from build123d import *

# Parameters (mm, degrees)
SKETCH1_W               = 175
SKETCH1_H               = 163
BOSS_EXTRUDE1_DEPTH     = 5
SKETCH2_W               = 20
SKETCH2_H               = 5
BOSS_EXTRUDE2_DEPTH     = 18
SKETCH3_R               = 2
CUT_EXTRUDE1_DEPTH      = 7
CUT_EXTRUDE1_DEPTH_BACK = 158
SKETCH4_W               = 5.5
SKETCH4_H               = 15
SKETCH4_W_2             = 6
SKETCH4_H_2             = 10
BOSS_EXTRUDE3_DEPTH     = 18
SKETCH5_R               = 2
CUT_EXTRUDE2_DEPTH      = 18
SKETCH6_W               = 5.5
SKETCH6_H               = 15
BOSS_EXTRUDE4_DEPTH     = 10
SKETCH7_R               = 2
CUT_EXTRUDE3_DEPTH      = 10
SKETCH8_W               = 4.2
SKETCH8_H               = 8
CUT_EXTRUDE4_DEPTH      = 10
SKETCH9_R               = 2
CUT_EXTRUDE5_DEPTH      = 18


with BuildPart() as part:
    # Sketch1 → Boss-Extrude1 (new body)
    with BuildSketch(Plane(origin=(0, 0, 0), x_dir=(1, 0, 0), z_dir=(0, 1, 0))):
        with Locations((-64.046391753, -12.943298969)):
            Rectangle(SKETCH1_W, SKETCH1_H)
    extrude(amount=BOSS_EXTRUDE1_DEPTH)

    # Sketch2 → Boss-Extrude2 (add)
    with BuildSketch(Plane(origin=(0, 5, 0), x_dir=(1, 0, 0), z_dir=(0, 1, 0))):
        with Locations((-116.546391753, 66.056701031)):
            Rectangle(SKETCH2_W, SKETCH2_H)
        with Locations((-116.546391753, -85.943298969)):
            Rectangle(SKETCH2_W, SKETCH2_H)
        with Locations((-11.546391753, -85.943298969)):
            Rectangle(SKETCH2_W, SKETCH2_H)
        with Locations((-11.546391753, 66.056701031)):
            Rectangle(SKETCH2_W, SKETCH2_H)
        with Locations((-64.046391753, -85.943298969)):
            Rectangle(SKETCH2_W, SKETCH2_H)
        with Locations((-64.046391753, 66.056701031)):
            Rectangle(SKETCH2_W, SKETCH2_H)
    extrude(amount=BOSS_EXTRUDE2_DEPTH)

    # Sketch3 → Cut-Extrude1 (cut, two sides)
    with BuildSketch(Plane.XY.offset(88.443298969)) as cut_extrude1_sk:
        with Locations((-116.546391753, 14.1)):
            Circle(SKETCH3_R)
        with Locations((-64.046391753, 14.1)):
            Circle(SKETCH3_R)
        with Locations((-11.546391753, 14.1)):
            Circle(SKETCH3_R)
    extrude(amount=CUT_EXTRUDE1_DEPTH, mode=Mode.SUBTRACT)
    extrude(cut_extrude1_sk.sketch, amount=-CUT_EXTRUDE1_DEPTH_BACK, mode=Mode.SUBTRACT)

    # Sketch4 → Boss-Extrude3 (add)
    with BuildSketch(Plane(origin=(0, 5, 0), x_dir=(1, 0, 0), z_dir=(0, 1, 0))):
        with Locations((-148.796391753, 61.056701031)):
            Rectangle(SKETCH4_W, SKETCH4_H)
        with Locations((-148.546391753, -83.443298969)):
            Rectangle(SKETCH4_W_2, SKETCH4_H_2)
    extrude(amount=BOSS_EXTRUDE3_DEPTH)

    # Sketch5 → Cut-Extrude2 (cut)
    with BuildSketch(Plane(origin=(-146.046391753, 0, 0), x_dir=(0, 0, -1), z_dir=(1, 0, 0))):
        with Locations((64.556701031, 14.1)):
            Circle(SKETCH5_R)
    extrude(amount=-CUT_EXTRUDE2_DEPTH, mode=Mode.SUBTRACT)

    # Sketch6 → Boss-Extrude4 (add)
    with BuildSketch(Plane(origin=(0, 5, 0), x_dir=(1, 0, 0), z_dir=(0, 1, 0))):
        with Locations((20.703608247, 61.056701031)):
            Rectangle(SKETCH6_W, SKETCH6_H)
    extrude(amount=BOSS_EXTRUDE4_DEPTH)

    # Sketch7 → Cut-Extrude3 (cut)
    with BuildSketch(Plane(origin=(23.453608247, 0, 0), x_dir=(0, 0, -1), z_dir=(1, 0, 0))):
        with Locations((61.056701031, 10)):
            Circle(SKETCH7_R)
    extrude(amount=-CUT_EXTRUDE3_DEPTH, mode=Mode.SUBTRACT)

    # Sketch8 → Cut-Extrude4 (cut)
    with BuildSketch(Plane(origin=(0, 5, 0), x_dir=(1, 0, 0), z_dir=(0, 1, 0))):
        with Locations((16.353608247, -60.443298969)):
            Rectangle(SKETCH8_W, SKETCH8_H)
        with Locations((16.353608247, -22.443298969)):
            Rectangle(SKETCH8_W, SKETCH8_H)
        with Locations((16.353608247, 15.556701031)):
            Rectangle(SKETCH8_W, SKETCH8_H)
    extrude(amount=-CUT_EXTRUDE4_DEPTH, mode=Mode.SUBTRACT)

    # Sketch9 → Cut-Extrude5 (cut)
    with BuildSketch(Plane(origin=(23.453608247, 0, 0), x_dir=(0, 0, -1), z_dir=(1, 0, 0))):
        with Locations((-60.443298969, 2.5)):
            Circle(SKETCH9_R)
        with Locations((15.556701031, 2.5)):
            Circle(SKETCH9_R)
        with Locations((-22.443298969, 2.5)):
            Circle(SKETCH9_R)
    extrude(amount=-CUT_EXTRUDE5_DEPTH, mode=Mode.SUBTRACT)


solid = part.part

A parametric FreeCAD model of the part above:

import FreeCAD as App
import Part
import Sketcher
Q = App.Units.Quantity

doc = App.newDocument("Part")
body = doc.addObject("PartDesign::Body", "Body")

# Sketch on XZ plane
sketch1 = body.newObject("Sketcher::SketchObject", "Sketch")
sketch1.AttachmentSupport = (doc.getObject("XZ_Plane"), [""])
sketch1.MapMode = "FlatFace"
sketch1.addGeometry(Part.LineSegment(App.Vector(-152, -69, 0), App.Vector(-152, 94, 0)), False)
sketch1.addGeometry(Part.LineSegment(App.Vector(-152, 94, 0), App.Vector(23, 94, 0)), False)
sketch1.addGeometry(Part.LineSegment(App.Vector(23, 94, 0), App.Vector(23, -69, 0)), False)
sketch1.addGeometry(Part.LineSegment(App.Vector(23, -69, 0), App.Vector(-152, -69, 0)), False)
sketch1.addConstraint(Sketcher.Constraint("Coincident", 0, 2, 1, 1))
sketch1.addConstraint(Sketcher.Constraint("Coincident", 1, 2, 2, 1))
sketch1.addConstraint(Sketcher.Constraint("Coincident", 2, 2, 3, 1))
sketch1.addConstraint(Sketcher.Constraint("Coincident", 3, 2, 0, 1))
sketch1.addConstraint(Sketcher.Constraint("Vertical", 0))
sketch1.addConstraint(Sketcher.Constraint("Horizontal", 1))
sketch1.addConstraint(Sketcher.Constraint("Vertical", 2))
sketch1.addConstraint(Sketcher.Constraint("Horizontal", 3))
sketch1.addConstraint(Sketcher.Constraint("DistanceX", 1, 1, 1, 2, Q("175 mm")))
sketch1.addConstraint(Sketcher.Constraint("DistanceY", 0, 1, 0, 2, Q("163 mm")))
sketch1.addConstraint(Sketcher.Constraint("DistanceY", -1, 1, 0, 2, Q("94.443299 mm")))
sketch1.addConstraint(Sketcher.Constraint("DistanceX", 0, 2, -1, 1, Q("151.546392 mm")))
pad1 = body.newObject("PartDesign::Pad", "Pad")
pad1.Profile = sketch1
pad1.Length = 5
pad1.Reversed = True

# Sketch on XZ plane
sketch2 = body.newObject("Sketcher::SketchObject", "Sketch001")
sketch2.AttachmentSupport = (doc.getObject("XZ_Plane"), [""])
sketch2.MapMode = "FlatFace"
sketch2.AttachmentOffset = App.Placement(App.Vector(0, 0, -5), App.Rotation())
sketch2.addGeometry(Part.LineSegment(App.Vector(-127, -69, 0), App.Vector(-127, -64, 0)), False)
sketch2.addGeometry(Part.LineSegment(App.Vector(-127, -64, 0), App.Vector(-107, -64, 0)), False)
sketch2.addGeometry(Part.LineSegment(App.Vector(-107, -64, 0), App.Vector(-107, -69, 0)), False)
sketch2.addGeometry(Part.LineSegment(App.Vector(-107, -69, 0), App.Vector(-127, -69, 0)), False)
sketch2.addGeometry(Part.LineSegment(App.Vector(-127, 83, 0), App.Vector(-127, 88, 0)), False)
sketch2.addGeometry(Part.LineSegment(App.Vector(-127, 88, 0), App.Vector(-107, 88, 0)), False)
sketch2.addGeometry(Part.LineSegment(App.Vector(-107, 88, 0), App.Vector(-107, 83, 0)), False)
sketch2.addGeometry(Part.LineSegment(App.Vector(-107, 83, 0), App.Vector(-127, 83, 0)), False)
sketch2.addGeometry(Part.LineSegment(App.Vector(-22, 83, 0), App.Vector(-22, 88, 0)), False)
sketch2.addGeometry(Part.LineSegment(App.Vector(-22, 88, 0), App.Vector(-2, 88, 0)), False)
sketch2.addGeometry(Part.LineSegment(App.Vector(-2, 88, 0), App.Vector(-2, 83, 0)), False)
sketch2.addGeometry(Part.LineSegment(App.Vector(-2, 83, 0), App.Vector(-22, 83, 0)), False)
sketch2.addGeometry(Part.LineSegment(App.Vector(-22, -69, 0), App.Vector(-22, -64, 0)), False)
sketch2.addGeometry(Part.LineSegment(App.Vector(-22, -64, 0), App.Vector(-2, -64, 0)), False)
sketch2.addGeometry(Part.LineSegment(App.Vector(-2, -64, 0), App.Vector(-2, -69, 0)), False)
sketch2.addGeometry(Part.LineSegment(App.Vector(-2, -69, 0), App.Vector(-22, -69, 0)), False)
sketch2.addGeometry(Part.LineSegment(App.Vector(-74, 83, 0), App.Vector(-74, 88, 0)), False)
sketch2.addGeometry(Part.LineSegment(App.Vector(-74, 88, 0), App.Vector(-54, 88, 0)), False)
sketch2.addGeometry(Part.LineSegment(App.Vector(-54, 88, 0), App.Vector(-54, 83, 0)), False)
sketch2.addGeometry(Part.LineSegment(App.Vector(-54, 83, 0), App.Vector(-74, 83, 0)), False)
sketch2.addGeometry(Part.LineSegment(App.Vector(-74, -69, 0), App.Vector(-74, -64, 0)), False)
sketch2.addGeometry(Part.LineSegment(App.Vector(-74, -64, 0), App.Vector(-54, -64, 0)), False)
sketch2.addGeometry(Part.LineSegment(App.Vector(-54, -64, 0), App.Vector(-54, -69, 0)), False)
sketch2.addGeometry(Part.LineSegment(App.Vector(-54, -69, 0), App.Vector(-74, -69, 0)), False)
sketch2.addConstraint(Sketcher.Constraint("Coincident", 0, 2, 1, 1))
sketch2.addConstraint(Sketcher.Constraint("Coincident", 1, 2, 2, 1))
sketch2.addConstraint(Sketcher.Constraint("Coincident", 2, 2, 3, 1))
sketch2.addConstraint(Sketcher.Constraint("Coincident", 3, 2, 0, 1))
sketch2.addConstraint(Sketcher.Constraint("Coincident", 4, 2, 5, 1))
sketch2.addConstraint(Sketcher.Constraint("Coincident", 5, 2, 6, 1))
sketch2.addConstraint(Sketcher.Constraint("Coincident", 6, 2, 7, 1))
sketch2.addConstraint(Sketcher.Constraint("Coincident", 7, 2, 4, 1))
sketch2.addConstraint(Sketcher.Constraint("Coincident", 8, 2, 9, 1))
sketch2.addConstraint(Sketcher.Constraint("Coincident", 9, 2, 10, 1))
sketch2.addConstraint(Sketcher.Constraint("Coincident", 10, 2, 11, 1))
sketch2.addConstraint(Sketcher.Constraint("Coincident", 11, 2, 8, 1))
sketch2.addConstraint(Sketcher.Constraint("Coincident", 12, 2, 13, 1))
sketch2.addConstraint(Sketcher.Constraint("Coincident", 13, 2, 14, 1))
sketch2.addConstraint(Sketcher.Constraint("Coincident", 14, 2, 15, 1))
sketch2.addConstraint(Sketcher.Constraint("Coincident", 15, 2, 12, 1))
sketch2.addConstraint(Sketcher.Constraint("Coincident", 16, 2, 17, 1))
sketch2.addConstraint(Sketcher.Constraint("Coincident", 17, 2, 18, 1))
sketch2.addConstraint(Sketcher.Constraint("Coincident", 18, 2, 19, 1))
sketch2.addConstraint(Sketcher.Constraint("Coincident", 19, 2, 16, 1))
sketch2.addConstraint(Sketcher.Constraint("Coincident", 20, 2, 21, 1))
sketch2.addConstraint(Sketcher.Constraint("Coincident", 21, 2, 22, 1))
sketch2.addConstraint(Sketcher.Constraint("Coincident", 22, 2, 23, 1))
sketch2.addConstraint(Sketcher.Constraint("Coincident", 23, 2, 20, 1))
sketch2.addConstraint(Sketcher.Constraint("Vertical", 0))
sketch2.addConstraint(Sketcher.Constraint("Horizontal", 1))
sketch2.addConstraint(Sketcher.Constraint("Vertical", 2))
sketch2.addConstraint(Sketcher.Constraint("Horizontal", 3))
sketch2.addConstraint(Sketcher.Constraint("Vertical", 4))
sketch2.addConstraint(Sketcher.Constraint("Horizontal", 5))
sketch2.addConstraint(Sketcher.Constraint("Vertical", 6))
sketch2.addConstraint(Sketcher.Constraint("Horizontal", 7))
sketch2.addConstraint(Sketcher.Constraint("Vertical", 8))
sketch2.addConstraint(Sketcher.Constraint("Horizontal", 9))
sketch2.addConstraint(Sketcher.Constraint("Vertical", 10))
sketch2.addConstraint(Sketcher.Constraint("Horizontal", 11))
sketch2.addConstraint(Sketcher.Constraint("Vertical", 12))
sketch2.addConstraint(Sketcher.Constraint("Horizontal", 13))
sketch2.addConstraint(Sketcher.Constraint("Vertical", 14))
sketch2.addConstraint(Sketcher.Constraint("Horizontal", 15))
sketch2.addConstraint(Sketcher.Constraint("Vertical", 16))
sketch2.addConstraint(Sketcher.Constraint("Horizontal", 17))
sketch2.addConstraint(Sketcher.Constraint("Vertical", 18))
sketch2.addConstraint(Sketcher.Constraint("Horizontal", 19))
sketch2.addConstraint(Sketcher.Constraint("Vertical", 20))
sketch2.addConstraint(Sketcher.Constraint("Horizontal", 21))
sketch2.addConstraint(Sketcher.Constraint("Vertical", 22))
sketch2.addConstraint(Sketcher.Constraint("Horizontal", 23))
sketch2.addConstraint(Sketcher.Constraint("Horizontal", 5, 2, 8, 2))
sketch2.addConstraint(Sketcher.Constraint("Horizontal", 7, 2, 10, 2))
sketch2.addConstraint(Sketcher.Constraint("Horizontal", 1, 2, 12, 2))
sketch2.addConstraint(Sketcher.Constraint("Horizontal", 3, 2, 14, 2))
sketch2.addConstraint(Sketcher.Constraint("Horizontal", 9, 2, 16, 2))
sketch2.addConstraint(Sketcher.Constraint("Horizontal", 11, 2, 18, 2))
sketch2.addConstraint(Sketcher.Constraint("Horizontal", 13, 2, 20, 2))
sketch2.addConstraint(Sketcher.Constraint("Horizontal", 15, 2, 22, 2))
sketch2.addConstraint(Sketcher.Constraint("Vertical", 3, 2, 4, 2))
sketch2.addConstraint(Sketcher.Constraint("Vertical", 2, 2, 5, 2))
sketch2.addConstraint(Sketcher.Constraint("Vertical", 11, 2, 12, 2))
sketch2.addConstraint(Sketcher.Constraint("Vertical", 10, 2, 13, 2))
sketch2.addConstraint(Sketcher.Constraint("Vertical", 19, 2, 20, 2))
sketch2.addConstraint(Sketcher.Constraint("Vertical", 18, 2, 21, 2))
sketch2.addConstraint(Sketcher.Constraint("Equal", 7, 9))
sketch2.addConstraint(Sketcher.Constraint("Equal", 15, 17))
sketch2.addConstraint(Sketcher.Constraint("Equal", 2, 4))
sketch2.addConstraint(Sketcher.Constraint("DistanceX", 1, 1, 1, 2, Q("20 mm")))
sketch2.addConstraint(Sketcher.Constraint("DistanceY", 0, 1, 0, 2, Q("5 mm")))
sketch2.addConstraint(Sketcher.Constraint("DistanceY", 0, 2, 4, 2, Q("152 mm")))
sketch2.addConstraint(Sketcher.Constraint("DistanceX", 5, 2, 8, 2, Q("85 mm")))
sketch2.addConstraint(Sketcher.Constraint("DistanceX", 5, 2, 16, 2, Q("32.5 mm")))
sketch2.addConstraint(Sketcher.Constraint("DistanceY", 0, 2, -1, 1, Q("63.556701 mm")))
sketch2.addConstraint(Sketcher.Constraint("DistanceX", 0, 2, -1, 1, Q("126.546392 mm")))
pad2 = body.newObject("PartDesign::Pad", "Pad001")
pad2.Profile = sketch2
pad2.Length = 18
pad2.Reversed = True

# Sketch on XY plane
sketch3 = body.newObject("Sketcher::SketchObject", "Sketch002")
sketch3.AttachmentSupport = (doc.getObject("XY_Plane"), [""])
sketch3.MapMode = "FlatFace"
sketch3.AttachmentOffset = App.Placement(App.Vector(0, 0, 88.443299), App.Rotation())
sketch3.addGeometry(Part.Circle(App.Vector(-116.5, 14.1, 0), App.Vector(0, 0, 1), 2), False)
sketch3.addGeometry(Part.Circle(App.Vector(-64, 14.1, 0), App.Vector(0, 0, 1), 2), False)
sketch3.addGeometry(Part.Circle(App.Vector(-11.5, 14.1, 0), App.Vector(0, 0, 1), 2), False)
sketch3.addConstraint(Sketcher.Constraint("Equal", 0, 1))
sketch3.addConstraint(Sketcher.Constraint("Equal", 1, 2))
sketch3.addConstraint(Sketcher.Constraint("Horizontal", 0, 3, 1, 3))
sketch3.addConstraint(Sketcher.Constraint("Horizontal", 1, 3, 2, 3))
sketch3.addConstraint(Sketcher.Constraint("Diameter", 0, Q("4 mm")))
sketch3.addConstraint(Sketcher.Constraint("DistanceX", 0, 3, 2, 3, Q("105 mm")))
sketch3.addConstraint(Sketcher.Constraint("DistanceY", -1, 1, 0, 3, Q("14.1 mm")))
sketch3.addConstraint(Sketcher.Constraint("DistanceX", 0, 3, 1, 3, Q("52.5 mm")))
sketch3.addConstraint(Sketcher.Constraint("DistanceX", 0, 3, -1, 1, Q("116.546392 mm")))
pocket1 = body.newObject("PartDesign::Pocket", "Pocket")
pocket1.Profile = sketch3
pocket1.Type = "ThroughAll"
pocket1.Midplane = True

# Sketch on XZ plane
sketch4 = body.newObject("Sketcher::SketchObject", "Sketch003")
sketch4.AttachmentSupport = (doc.getObject("XZ_Plane"), [""])
sketch4.MapMode = "FlatFace"
sketch4.AttachmentOffset = App.Placement(App.Vector(0, 0, -5), App.Rotation())
sketch4.addGeometry(Part.LineSegment(App.Vector(-152, -69, 0), App.Vector(-152, -54, 0)), False)
sketch4.addGeometry(Part.LineSegment(App.Vector(-152, -54, 0), App.Vector(-146, -54, 0)), False)
sketch4.addGeometry(Part.LineSegment(App.Vector(-146, -54, 0), App.Vector(-146, -69, 0)), False)
sketch4.addGeometry(Part.LineSegment(App.Vector(-146, -69, 0), App.Vector(-152, -69, 0)), False)
sketch4.addGeometry(Part.LineSegment(App.Vector(-152, 78, 0), App.Vector(-152, 88, 0)), False)
sketch4.addGeometry(Part.LineSegment(App.Vector(-152, 88, 0), App.Vector(-146, 88, 0)), False)
sketch4.addGeometry(Part.LineSegment(App.Vector(-146, 88, 0), App.Vector(-146, 78, 0)), False)
sketch4.addGeometry(Part.LineSegment(App.Vector(-146, 78, 0), App.Vector(-152, 78, 0)), False)
sketch4.addConstraint(Sketcher.Constraint("Coincident", 0, 2, 1, 1))
sketch4.addConstraint(Sketcher.Constraint("Coincident", 1, 2, 2, 1))
sketch4.addConstraint(Sketcher.Constraint("Coincident", 2, 2, 3, 1))
sketch4.addConstraint(Sketcher.Constraint("Coincident", 3, 2, 0, 1))
sketch4.addConstraint(Sketcher.Constraint("Coincident", 4, 2, 5, 1))
sketch4.addConstraint(Sketcher.Constraint("Coincident", 5, 2, 6, 1))
sketch4.addConstraint(Sketcher.Constraint("Coincident", 6, 2, 7, 1))
sketch4.addConstraint(Sketcher.Constraint("Coincident", 7, 2, 4, 1))
sketch4.addConstraint(Sketcher.Constraint("Vertical", 0))
sketch4.addConstraint(Sketcher.Constraint("Horizontal", 1))
sketch4.addConstraint(Sketcher.Constraint("Vertical", 2))
sketch4.addConstraint(Sketcher.Constraint("Horizontal", 3))
sketch4.addConstraint(Sketcher.Constraint("Vertical", 4))
sketch4.addConstraint(Sketcher.Constraint("Horizontal", 5))
sketch4.addConstraint(Sketcher.Constraint("Vertical", 6))
sketch4.addConstraint(Sketcher.Constraint("Horizontal", 7))
sketch4.addConstraint(Sketcher.Constraint("Vertical", 3, 2, 4, 2))
sketch4.addConstraint(Sketcher.Constraint("DistanceX", 5, 1, 5, 2, Q("6 mm")))
sketch4.addConstraint(Sketcher.Constraint("DistanceY", 0, 1, 0, 2, Q("15 mm")))
sketch4.addConstraint(Sketcher.Constraint("DistanceY", 4, 1, 4, 2, Q("10 mm")))
sketch4.addConstraint(Sketcher.Constraint("DistanceX", 1, 1, 1, 2, Q("5.5 mm")))
sketch4.addConstraint(Sketcher.Constraint("DistanceY", 0, 2, 4, 2, Q("142 mm")))
sketch4.addConstraint(Sketcher.Constraint("DistanceY", 0, 2, -1, 1, Q("53.556701 mm")))
sketch4.addConstraint(Sketcher.Constraint("DistanceX", 0, 2, -1, 1, Q("151.546392 mm")))
pad3 = body.newObject("PartDesign::Pad", "Pad002")
pad3.Profile = sketch4
pad3.Length = 18
pad3.Reversed = True

# Sketch on YZ plane
sketch5 = body.newObject("Sketcher::SketchObject", "Sketch004")
sketch5.AttachmentSupport = (doc.getObject("YZ_Plane"), [""])
sketch5.MapMode = "FlatFace"
sketch5.AttachmentOffset = App.Placement(App.Vector(0, 0, -146.046392), App.Rotation())
sketch5.addGeometry(Part.Circle(App.Vector(14.1, -64.6, 0), App.Vector(0, 0, 1), 2), False)
sketch5.addConstraint(Sketcher.Constraint("Diameter", 0, Q("4 mm")))
sketch5.addConstraint(Sketcher.Constraint("DistanceX", -1, 1, 0, 3, Q("14.1 mm")))
sketch5.addConstraint(Sketcher.Constraint("DistanceY", 0, 3, -1, 1, Q("64.556701 mm")))
pocket2 = body.newObject("PartDesign::Pocket", "Pocket001")
pocket2.Profile = sketch5
pocket2.Length = 18

# Sketch on XZ plane
sketch6 = body.newObject("Sketcher::SketchObject", "Sketch005")
sketch6.AttachmentSupport = (doc.getObject("XZ_Plane"), [""])
sketch6.MapMode = "FlatFace"
sketch6.AttachmentOffset = App.Placement(App.Vector(0, 0, -5), App.Rotation())
sketch6.addGeometry(Part.LineSegment(App.Vector(18, -69, 0), App.Vector(18, -54, 0)), False)
sketch6.addGeometry(Part.LineSegment(App.Vector(18, -54, 0), App.Vector(23, -54, 0)), False)
sketch6.addGeometry(Part.LineSegment(App.Vector(23, -54, 0), App.Vector(23, -69, 0)), False)
sketch6.addGeometry(Part.LineSegment(App.Vector(23, -69, 0), App.Vector(18, -69, 0)), False)
sketch6.addConstraint(Sketcher.Constraint("Coincident", 0, 2, 1, 1))
sketch6.addConstraint(Sketcher.Constraint("Coincident", 1, 2, 2, 1))
sketch6.addConstraint(Sketcher.Constraint("Coincident", 2, 2, 3, 1))
sketch6.addConstraint(Sketcher.Constraint("Coincident", 3, 2, 0, 1))
sketch6.addConstraint(Sketcher.Constraint("Vertical", 0))
sketch6.addConstraint(Sketcher.Constraint("Horizontal", 1))
sketch6.addConstraint(Sketcher.Constraint("Vertical", 2))
sketch6.addConstraint(Sketcher.Constraint("Horizontal", 3))
sketch6.addConstraint(Sketcher.Constraint("DistanceY", 0, 1, 0, 2, Q("15 mm")))
sketch6.addConstraint(Sketcher.Constraint("DistanceX", 1, 1, 1, 2, Q("5.5 mm")))
sketch6.addConstraint(Sketcher.Constraint("DistanceY", 0, 2, -1, 1, Q("53.556701 mm")))
sketch6.addConstraint(Sketcher.Constraint("DistanceX", -1, 1, 0, 2, Q("17.953608 mm")))
pad4 = body.newObject("PartDesign::Pad", "Pad003")
pad4.Profile = sketch6
pad4.Length = 10
pad4.Reversed = True

# Sketch on YZ plane
sketch7 = body.newObject("Sketcher::SketchObject", "Sketch006")
sketch7.AttachmentSupport = (doc.getObject("YZ_Plane"), [""])
sketch7.MapMode = "FlatFace"
sketch7.AttachmentOffset = App.Placement(App.Vector(0, 0, 23.453608), App.Rotation())
sketch7.addGeometry(Part.Circle(App.Vector(10, -61.1, 0), App.Vector(0, 0, 1), 2), False)
sketch7.addConstraint(Sketcher.Constraint("Diameter", 0, Q("4 mm")))
sketch7.addConstraint(Sketcher.Constraint("DistanceX", -1, 1, 0, 3, Q("10 mm")))
sketch7.addConstraint(Sketcher.Constraint("DistanceY", 0, 3, -1, 1, Q("61.056701 mm")))
pocket3 = body.newObject("PartDesign::Pocket", "Pocket002")
pocket3.Profile = sketch7
pocket3.Length = 10

# Sketch on XZ plane
sketch8 = body.newObject("Sketcher::SketchObject", "Sketch007")
sketch8.AttachmentSupport = (doc.getObject("XZ_Plane"), [""])
sketch8.MapMode = "FlatFace"
sketch8.AttachmentOffset = App.Placement(App.Vector(0, 0, -5), App.Rotation())
sketch8.addGeometry(Part.LineSegment(App.Vector(14.3, 56.4, 0), App.Vector(14.3, 64.4, 0)), False)
sketch8.addGeometry(Part.LineSegment(App.Vector(14.3, 64.4, 0), App.Vector(18.5, 64.4, 0)), False)
sketch8.addGeometry(Part.LineSegment(App.Vector(18.5, 64.4, 0), App.Vector(18.5, 56.4, 0)), False)
sketch8.addGeometry(Part.LineSegment(App.Vector(18.5, 56.4, 0), App.Vector(14.3, 56.4, 0)), False)
sketch8.addGeometry(Part.LineSegment(App.Vector(14.3, 18.4, 0), App.Vector(14.3, 26.4, 0)), False)
sketch8.addGeometry(Part.LineSegment(App.Vector(14.3, 26.4, 0), App.Vector(18.5, 26.4, 0)), False)
sketch8.addGeometry(Part.LineSegment(App.Vector(18.5, 26.4, 0), App.Vector(18.5, 18.4, 0)), False)
sketch8.addGeometry(Part.LineSegment(App.Vector(18.5, 18.4, 0), App.Vector(14.3, 18.4, 0)), False)
sketch8.addGeometry(Part.LineSegment(App.Vector(14.3, -19.6, 0), App.Vector(14.3, -11.6, 0)), False)
sketch8.addGeometry(Part.LineSegment(App.Vector(14.3, -11.6, 0), App.Vector(18.5, -11.6, 0)), False)
sketch8.addGeometry(Part.LineSegment(App.Vector(18.5, -11.6, 0), App.Vector(18.5, -19.6, 0)), False)
sketch8.addGeometry(Part.LineSegment(App.Vector(18.5, -19.6, 0), App.Vector(14.3, -19.6, 0)), False)
sketch8.addConstraint(Sketcher.Constraint("Coincident", 0, 2, 1, 1))
sketch8.addConstraint(Sketcher.Constraint("Coincident", 1, 2, 2, 1))
sketch8.addConstraint(Sketcher.Constraint("Coincident", 2, 2, 3, 1))
sketch8.addConstraint(Sketcher.Constraint("Coincident", 3, 2, 0, 1))
sketch8.addConstraint(Sketcher.Constraint("Coincident", 4, 2, 5, 1))
sketch8.addConstraint(Sketcher.Constraint("Coincident", 5, 2, 6, 1))
sketch8.addConstraint(Sketcher.Constraint("Coincident", 6, 2, 7, 1))
sketch8.addConstraint(Sketcher.Constraint("Coincident", 7, 2, 4, 1))
sketch8.addConstraint(Sketcher.Constraint("Coincident", 8, 2, 9, 1))
sketch8.addConstraint(Sketcher.Constraint("Coincident", 9, 2, 10, 1))
sketch8.addConstraint(Sketcher.Constraint("Coincident", 10, 2, 11, 1))
sketch8.addConstraint(Sketcher.Constraint("Coincident", 11, 2, 8, 1))
sketch8.addConstraint(Sketcher.Constraint("Vertical", 0))
sketch8.addConstraint(Sketcher.Constraint("Horizontal", 1))
sketch8.addConstraint(Sketcher.Constraint("Vertical", 2))
sketch8.addConstraint(Sketcher.Constraint("Horizontal", 3))
sketch8.addConstraint(Sketcher.Constraint("Vertical", 4))
sketch8.addConstraint(Sketcher.Constraint("Horizontal", 5))
sketch8.addConstraint(Sketcher.Constraint("Vertical", 6))
sketch8.addConstraint(Sketcher.Constraint("Horizontal", 7))
sketch8.addConstraint(Sketcher.Constraint("Vertical", 8))
sketch8.addConstraint(Sketcher.Constraint("Horizontal", 9))
sketch8.addConstraint(Sketcher.Constraint("Vertical", 10))
sketch8.addConstraint(Sketcher.Constraint("Horizontal", 11))
sketch8.addConstraint(Sketcher.Constraint("Vertical", 3, 2, 4, 2))
sketch8.addConstraint(Sketcher.Constraint("Vertical", 2, 2, 5, 2))
sketch8.addConstraint(Sketcher.Constraint("Vertical", 7, 2, 8, 2))
sketch8.addConstraint(Sketcher.Constraint("Vertical", 6, 2, 9, 2))
sketch8.addConstraint(Sketcher.Constraint("Equal", 2, 4))
sketch8.addConstraint(Sketcher.Constraint("Equal", 6, 8))
sketch8.addConstraint(Sketcher.Constraint("DistanceY", 0, 1, 0, 2, Q("8 mm")))
sketch8.addConstraint(Sketcher.Constraint("DistanceX", 1, 1, 1, 2, Q("4.2 mm")))
sketch8.addConstraint(Sketcher.Constraint("DistanceY", 4, 2, 3, 2, Q("30 mm")))
sketch8.addConstraint(Sketcher.Constraint("DistanceY", 8, 2, 7, 2, Q("30 mm")))
sketch8.addConstraint(Sketcher.Constraint("DistanceY", -1, 1, 0, 2, Q("64.443299 mm")))
sketch8.addConstraint(Sketcher.Constraint("DistanceX", -1, 1, 0, 2, Q("14.253608 mm")))
pocket4 = body.newObject("PartDesign::Pocket", "Pocket003")
pocket4.Profile = sketch8
pocket4.Length = 10
pocket4.Reversed = True

# Sketch on YZ plane
sketch9 = body.newObject("Sketcher::SketchObject", "Sketch008")
sketch9.AttachmentSupport = (doc.getObject("YZ_Plane"), [""])
sketch9.MapMode = "FlatFace"
sketch9.AttachmentOffset = App.Placement(App.Vector(0, 0, 23.453608), App.Rotation())
sketch9.addGeometry(Part.Circle(App.Vector(2.5, 60.4, 0), App.Vector(0, 0, 1), 2), False)
sketch9.addGeometry(Part.Circle(App.Vector(2.5, -15.6, 0), App.Vector(0, 0, 1), 2), False)
sketch9.addGeometry(Part.Circle(App.Vector(2.5, 22.4, 0), App.Vector(0, 0, 1), 2), False)
sketch9.addConstraint(Sketcher.Constraint("Equal", 0, 1))
sketch9.addConstraint(Sketcher.Constraint("Equal", 1, 2))
sketch9.addConstraint(Sketcher.Constraint("Vertical", 0, 3, 1, 3))
sketch9.addConstraint(Sketcher.Constraint("Vertical", 1, 3, 2, 3))
sketch9.addConstraint(Sketcher.Constraint("Diameter", 0, Q("4 mm")))
sketch9.addConstraint(Sketcher.Constraint("DistanceY", 1, 3, 0, 3, Q("76 mm")))
sketch9.addConstraint(Sketcher.Constraint("DistanceY", 2, 3, 0, 3, Q("38 mm")))
sketch9.addConstraint(Sketcher.Constraint("DistanceX", -1, 1, 0, 3, Q("2.5 mm")))
sketch9.addConstraint(Sketcher.Constraint("DistanceY", -1, 1, 0, 3, Q("60.443299 mm")))
pocket5 = body.newObject("PartDesign::Pocket", "Pocket004")
pocket5.Profile = sketch9
pocket5.Length = 18

doc.recompute()
